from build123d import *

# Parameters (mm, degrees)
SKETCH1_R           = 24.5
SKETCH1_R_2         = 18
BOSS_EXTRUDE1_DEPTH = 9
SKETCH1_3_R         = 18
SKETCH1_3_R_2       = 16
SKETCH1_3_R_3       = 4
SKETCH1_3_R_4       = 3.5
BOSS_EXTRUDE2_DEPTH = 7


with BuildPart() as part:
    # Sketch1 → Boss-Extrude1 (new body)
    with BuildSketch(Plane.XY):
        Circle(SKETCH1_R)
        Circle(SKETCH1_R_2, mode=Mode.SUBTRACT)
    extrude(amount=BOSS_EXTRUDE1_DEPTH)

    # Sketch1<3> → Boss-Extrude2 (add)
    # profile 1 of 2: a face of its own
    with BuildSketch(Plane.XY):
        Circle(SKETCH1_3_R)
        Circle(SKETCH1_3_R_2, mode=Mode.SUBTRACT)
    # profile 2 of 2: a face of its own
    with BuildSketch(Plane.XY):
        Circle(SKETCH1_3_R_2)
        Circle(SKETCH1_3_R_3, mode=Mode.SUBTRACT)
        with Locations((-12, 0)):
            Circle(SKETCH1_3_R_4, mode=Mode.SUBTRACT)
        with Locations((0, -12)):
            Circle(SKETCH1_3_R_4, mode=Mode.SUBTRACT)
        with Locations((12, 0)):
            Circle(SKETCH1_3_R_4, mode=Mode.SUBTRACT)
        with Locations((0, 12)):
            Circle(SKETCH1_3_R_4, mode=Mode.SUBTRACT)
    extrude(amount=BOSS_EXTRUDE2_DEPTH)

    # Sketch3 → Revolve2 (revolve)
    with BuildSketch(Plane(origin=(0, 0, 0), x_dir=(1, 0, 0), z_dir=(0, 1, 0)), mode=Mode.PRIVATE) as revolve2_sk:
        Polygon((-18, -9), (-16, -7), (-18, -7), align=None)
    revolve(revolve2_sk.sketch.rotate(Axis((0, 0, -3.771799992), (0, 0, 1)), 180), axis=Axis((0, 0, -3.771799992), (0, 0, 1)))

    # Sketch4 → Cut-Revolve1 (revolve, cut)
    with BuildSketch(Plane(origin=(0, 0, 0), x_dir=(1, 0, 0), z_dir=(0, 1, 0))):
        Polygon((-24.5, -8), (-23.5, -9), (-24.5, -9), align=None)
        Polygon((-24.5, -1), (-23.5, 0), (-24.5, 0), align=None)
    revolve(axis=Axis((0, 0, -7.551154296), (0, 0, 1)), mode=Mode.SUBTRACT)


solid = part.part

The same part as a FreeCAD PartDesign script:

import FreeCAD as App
import Part
import Sketcher


def add_polygon(sketch, points):
    """Adds a closed chain of lines whose ends are joined by coincident constraints."""
    first, n = sketch.GeometryCount, len(points)
    for a, b in zip(points, points[1:] + points[:1]):
        sketch.addGeometry(Part.LineSegment(App.Vector(*a, 0), App.Vector(*b, 0)), False)
    for i in range(n):
        sketch.addConstraint(Sketcher.Constraint("Coincident", first + i, 2, first + (i + 1) % n, 1))

doc = App.newDocument("Part")
body = doc.addObject("PartDesign::Body", "Body")

sketch1 = body.newObject("Sketcher::SketchObject", "Sketch")
sketch1.AttachmentSupport = (doc.getObject("XY_Plane"), [""])
sketch1.MapMode = "FlatFace"
sketch1.addGeometry(Part.Circle(App.Vector(0, 0, 0), App.Vector(0, 0, 1), 24.5), False)
sketch1.addGeometry(Part.Circle(App.Vector(0, 0, 0), App.Vector(0, 0, 1), 18), False)
sketch1.addConstraint(Sketcher.Constraint("Coincident", 0, 3, -1, 1))
sketch1.addConstraint(Sketcher.Constraint("Coincident", 1, 3, -1, 1))
sketch1.addConstraint(Sketcher.Constraint("Diameter", 0, 49.0))
sketch1.addConstraint(Sketcher.Constraint("Diameter", 1, 36.0))
pad1 = body.newObject("PartDesign::Pad", "Pad")
pad1.Profile = sketch1
pad1.Length = 9

sketch2 = body.newObject("Sketcher::SketchObject", "Sketch001")
sketch2.AttachmentSupport = (doc.getObject("XY_Plane"), [""])
sketch2.MapMode = "FlatFace"
sketch2.addGeometry(Part.Circle(App.Vector(0, 0, 0), App.Vector(0, 0, 1), 18), False)
sketch2.addGeometry(Part.Circle(App.Vector(0, 12, 0), App.Vector(0, 0, 1), 3.5), False)
sketch2.addGeometry(Part.Circle(App.Vector(0, -12, 0), App.Vector(0, 0, 1), 3.5), False)
sketch2.addGeometry(Part.Circle(App.Vector(-12, 0, 0), App.Vector(0, 0, 1), 3.5), False)
sketch2.addGeometry(Part.Circle(App.Vector(0, 0, 0), App.Vector(0, 0, 1), 4), False)
sketch2.addGeometry(Part.Circle(App.Vector(12, 0, 0), App.Vector(0, 0, 1), 3.5), False)
sketch2.addConstraint(Sketcher.Constraint("Coincident", 0, 3, -1, 1))
sketch2.addConstraint(Sketcher.Constraint("Coincident", 4, 3, -1, 1))
sketch2.addConstraint(Sketcher.Constraint("Equal", 1, 2))
sketch2.addConstraint(Sketcher.Constraint("Equal", 2, 3))
sketch2.addConstraint(Sketcher.Constraint("Equal", 3, 5))
sketch2.addConstraint(Sketcher.Constraint("Symmetric", 1, 3, 2, 3, -1, 1))
sketch2.addConstraint(Sketcher.Constraint("Symmetric", 3, 3, 5, 3, -1, 1))
sketch2.addConstraint(Sketcher.Constraint("PointOnObject", 1, 3, -2))
sketch2.addConstraint(Sketcher.Constraint("PointOnObject", 3, 3, -1))
sketch2.addConstraint(Sketcher.Constraint("Diameter", 0, 36.0))
sketch2.addConstraint(Sketcher.Constraint("Diameter", 1, 7.0))
sketch2.addConstraint(Sketcher.Constraint("Diameter", 4, 8.0))
sketch2.addConstraint(Sketcher.Constraint("DistanceY", -1, 1, 1, 3, 12.0))
sketch2.addConstraint(Sketcher.Constraint("DistanceX", 3, 3, -1, 1, 12.0))
pad2 = body.newObject("PartDesign::Pad", "Pad001")
pad2.Profile = sketch2
pad2.Length = 7

sketch3 = body.newObject("Sketcher::SketchObject", "Sketch002")
sketch3.AttachmentSupport = (doc.getObject("XZ_Plane"), [""])
sketch3.MapMode = "FlatFace"
add_polygon(sketch3, [(-18, 9), (-16, 7), (-18, 7)])
sketch3.addConstraint(Sketcher.Constraint("Horizontal", 1))
sketch3.addConstraint(Sketcher.Constraint("Vertical", 2))
sketch3.addConstraint(Sketcher.Constraint("Equal", 1, 2))
sketch3.addConstraint(Sketcher.Constraint("DistanceX", 1, 2, 1, 1, 2.0))
sketch3.addConstraint(Sketcher.Constraint("DistanceX", 0, 2, -1, 1, 16.0))
sketch3.addConstraint(Sketcher.Constraint("DistanceY", -1, 1, 0, 2, 7.0))
revolution = body.newObject("PartDesign::Revolution", "Revolution")
revolution.Profile = sketch3
revolution.ReferenceAxis = (sketch3, ["V_Axis"])
revolution.Angle = 360

sketch4 = body.newObject("Sketcher::SketchObject", "Sketch003")
sketch4.AttachmentSupport = (doc.getObject("XZ_Plane"), [""])
sketch4.MapMode = "FlatFace"
add_polygon(sketch4, [(-23.5, 9), (-24.5, 8), (-24.5, 9)])
add_polygon(sketch4, [(-24.5, 1), (-23.5, 0), (-24.5, 0)])
sketch4.addConstraint(Sketcher.Constraint("Vertical", 1))
sketch4.addConstraint(Sketcher.Constraint("Horizontal", 2))
sketch4.addConstraint(Sketcher.Constraint("Horizontal", 4))
sketch4.addConstraint(Sketcher.Constraint("Vertical", 5))
sketch4.addConstraint(Sketcher.Constraint("PointOnObject", 3, 2, -1))
sketch4.addConstraint(Sketcher.Constraint("Perpendicular", 0, 3))
sketch4.addConstraint(Sketcher.Constraint("Vertical", 2, 2, 3, 2))
sketch4.addConstraint(Sketcher.Constraint("Vertical", 1, 2, 4, 2))
sketch4.addConstraint(Sketcher.Constraint("Equal", 4, 1))
sketch4.addConstraint(Sketcher.Constraint("DistanceX", 2, 1, 2, 2, 1.0))
sketch4.addConstraint(Sketcher.Constraint("DistanceY", -1, 1, 0, 2, 8.0))
sketch4.addConstraint(Sketcher.Constraint("DistanceX", 0, 2, -1, 1, 24.5))
groove = body.newObject("PartDesign::Groove", "Groove")
groove.Profile = sketch4
groove.ReferenceAxis = (sketch4, ["V_Axis"])
groove.Angle = 360

doc.recompute()
